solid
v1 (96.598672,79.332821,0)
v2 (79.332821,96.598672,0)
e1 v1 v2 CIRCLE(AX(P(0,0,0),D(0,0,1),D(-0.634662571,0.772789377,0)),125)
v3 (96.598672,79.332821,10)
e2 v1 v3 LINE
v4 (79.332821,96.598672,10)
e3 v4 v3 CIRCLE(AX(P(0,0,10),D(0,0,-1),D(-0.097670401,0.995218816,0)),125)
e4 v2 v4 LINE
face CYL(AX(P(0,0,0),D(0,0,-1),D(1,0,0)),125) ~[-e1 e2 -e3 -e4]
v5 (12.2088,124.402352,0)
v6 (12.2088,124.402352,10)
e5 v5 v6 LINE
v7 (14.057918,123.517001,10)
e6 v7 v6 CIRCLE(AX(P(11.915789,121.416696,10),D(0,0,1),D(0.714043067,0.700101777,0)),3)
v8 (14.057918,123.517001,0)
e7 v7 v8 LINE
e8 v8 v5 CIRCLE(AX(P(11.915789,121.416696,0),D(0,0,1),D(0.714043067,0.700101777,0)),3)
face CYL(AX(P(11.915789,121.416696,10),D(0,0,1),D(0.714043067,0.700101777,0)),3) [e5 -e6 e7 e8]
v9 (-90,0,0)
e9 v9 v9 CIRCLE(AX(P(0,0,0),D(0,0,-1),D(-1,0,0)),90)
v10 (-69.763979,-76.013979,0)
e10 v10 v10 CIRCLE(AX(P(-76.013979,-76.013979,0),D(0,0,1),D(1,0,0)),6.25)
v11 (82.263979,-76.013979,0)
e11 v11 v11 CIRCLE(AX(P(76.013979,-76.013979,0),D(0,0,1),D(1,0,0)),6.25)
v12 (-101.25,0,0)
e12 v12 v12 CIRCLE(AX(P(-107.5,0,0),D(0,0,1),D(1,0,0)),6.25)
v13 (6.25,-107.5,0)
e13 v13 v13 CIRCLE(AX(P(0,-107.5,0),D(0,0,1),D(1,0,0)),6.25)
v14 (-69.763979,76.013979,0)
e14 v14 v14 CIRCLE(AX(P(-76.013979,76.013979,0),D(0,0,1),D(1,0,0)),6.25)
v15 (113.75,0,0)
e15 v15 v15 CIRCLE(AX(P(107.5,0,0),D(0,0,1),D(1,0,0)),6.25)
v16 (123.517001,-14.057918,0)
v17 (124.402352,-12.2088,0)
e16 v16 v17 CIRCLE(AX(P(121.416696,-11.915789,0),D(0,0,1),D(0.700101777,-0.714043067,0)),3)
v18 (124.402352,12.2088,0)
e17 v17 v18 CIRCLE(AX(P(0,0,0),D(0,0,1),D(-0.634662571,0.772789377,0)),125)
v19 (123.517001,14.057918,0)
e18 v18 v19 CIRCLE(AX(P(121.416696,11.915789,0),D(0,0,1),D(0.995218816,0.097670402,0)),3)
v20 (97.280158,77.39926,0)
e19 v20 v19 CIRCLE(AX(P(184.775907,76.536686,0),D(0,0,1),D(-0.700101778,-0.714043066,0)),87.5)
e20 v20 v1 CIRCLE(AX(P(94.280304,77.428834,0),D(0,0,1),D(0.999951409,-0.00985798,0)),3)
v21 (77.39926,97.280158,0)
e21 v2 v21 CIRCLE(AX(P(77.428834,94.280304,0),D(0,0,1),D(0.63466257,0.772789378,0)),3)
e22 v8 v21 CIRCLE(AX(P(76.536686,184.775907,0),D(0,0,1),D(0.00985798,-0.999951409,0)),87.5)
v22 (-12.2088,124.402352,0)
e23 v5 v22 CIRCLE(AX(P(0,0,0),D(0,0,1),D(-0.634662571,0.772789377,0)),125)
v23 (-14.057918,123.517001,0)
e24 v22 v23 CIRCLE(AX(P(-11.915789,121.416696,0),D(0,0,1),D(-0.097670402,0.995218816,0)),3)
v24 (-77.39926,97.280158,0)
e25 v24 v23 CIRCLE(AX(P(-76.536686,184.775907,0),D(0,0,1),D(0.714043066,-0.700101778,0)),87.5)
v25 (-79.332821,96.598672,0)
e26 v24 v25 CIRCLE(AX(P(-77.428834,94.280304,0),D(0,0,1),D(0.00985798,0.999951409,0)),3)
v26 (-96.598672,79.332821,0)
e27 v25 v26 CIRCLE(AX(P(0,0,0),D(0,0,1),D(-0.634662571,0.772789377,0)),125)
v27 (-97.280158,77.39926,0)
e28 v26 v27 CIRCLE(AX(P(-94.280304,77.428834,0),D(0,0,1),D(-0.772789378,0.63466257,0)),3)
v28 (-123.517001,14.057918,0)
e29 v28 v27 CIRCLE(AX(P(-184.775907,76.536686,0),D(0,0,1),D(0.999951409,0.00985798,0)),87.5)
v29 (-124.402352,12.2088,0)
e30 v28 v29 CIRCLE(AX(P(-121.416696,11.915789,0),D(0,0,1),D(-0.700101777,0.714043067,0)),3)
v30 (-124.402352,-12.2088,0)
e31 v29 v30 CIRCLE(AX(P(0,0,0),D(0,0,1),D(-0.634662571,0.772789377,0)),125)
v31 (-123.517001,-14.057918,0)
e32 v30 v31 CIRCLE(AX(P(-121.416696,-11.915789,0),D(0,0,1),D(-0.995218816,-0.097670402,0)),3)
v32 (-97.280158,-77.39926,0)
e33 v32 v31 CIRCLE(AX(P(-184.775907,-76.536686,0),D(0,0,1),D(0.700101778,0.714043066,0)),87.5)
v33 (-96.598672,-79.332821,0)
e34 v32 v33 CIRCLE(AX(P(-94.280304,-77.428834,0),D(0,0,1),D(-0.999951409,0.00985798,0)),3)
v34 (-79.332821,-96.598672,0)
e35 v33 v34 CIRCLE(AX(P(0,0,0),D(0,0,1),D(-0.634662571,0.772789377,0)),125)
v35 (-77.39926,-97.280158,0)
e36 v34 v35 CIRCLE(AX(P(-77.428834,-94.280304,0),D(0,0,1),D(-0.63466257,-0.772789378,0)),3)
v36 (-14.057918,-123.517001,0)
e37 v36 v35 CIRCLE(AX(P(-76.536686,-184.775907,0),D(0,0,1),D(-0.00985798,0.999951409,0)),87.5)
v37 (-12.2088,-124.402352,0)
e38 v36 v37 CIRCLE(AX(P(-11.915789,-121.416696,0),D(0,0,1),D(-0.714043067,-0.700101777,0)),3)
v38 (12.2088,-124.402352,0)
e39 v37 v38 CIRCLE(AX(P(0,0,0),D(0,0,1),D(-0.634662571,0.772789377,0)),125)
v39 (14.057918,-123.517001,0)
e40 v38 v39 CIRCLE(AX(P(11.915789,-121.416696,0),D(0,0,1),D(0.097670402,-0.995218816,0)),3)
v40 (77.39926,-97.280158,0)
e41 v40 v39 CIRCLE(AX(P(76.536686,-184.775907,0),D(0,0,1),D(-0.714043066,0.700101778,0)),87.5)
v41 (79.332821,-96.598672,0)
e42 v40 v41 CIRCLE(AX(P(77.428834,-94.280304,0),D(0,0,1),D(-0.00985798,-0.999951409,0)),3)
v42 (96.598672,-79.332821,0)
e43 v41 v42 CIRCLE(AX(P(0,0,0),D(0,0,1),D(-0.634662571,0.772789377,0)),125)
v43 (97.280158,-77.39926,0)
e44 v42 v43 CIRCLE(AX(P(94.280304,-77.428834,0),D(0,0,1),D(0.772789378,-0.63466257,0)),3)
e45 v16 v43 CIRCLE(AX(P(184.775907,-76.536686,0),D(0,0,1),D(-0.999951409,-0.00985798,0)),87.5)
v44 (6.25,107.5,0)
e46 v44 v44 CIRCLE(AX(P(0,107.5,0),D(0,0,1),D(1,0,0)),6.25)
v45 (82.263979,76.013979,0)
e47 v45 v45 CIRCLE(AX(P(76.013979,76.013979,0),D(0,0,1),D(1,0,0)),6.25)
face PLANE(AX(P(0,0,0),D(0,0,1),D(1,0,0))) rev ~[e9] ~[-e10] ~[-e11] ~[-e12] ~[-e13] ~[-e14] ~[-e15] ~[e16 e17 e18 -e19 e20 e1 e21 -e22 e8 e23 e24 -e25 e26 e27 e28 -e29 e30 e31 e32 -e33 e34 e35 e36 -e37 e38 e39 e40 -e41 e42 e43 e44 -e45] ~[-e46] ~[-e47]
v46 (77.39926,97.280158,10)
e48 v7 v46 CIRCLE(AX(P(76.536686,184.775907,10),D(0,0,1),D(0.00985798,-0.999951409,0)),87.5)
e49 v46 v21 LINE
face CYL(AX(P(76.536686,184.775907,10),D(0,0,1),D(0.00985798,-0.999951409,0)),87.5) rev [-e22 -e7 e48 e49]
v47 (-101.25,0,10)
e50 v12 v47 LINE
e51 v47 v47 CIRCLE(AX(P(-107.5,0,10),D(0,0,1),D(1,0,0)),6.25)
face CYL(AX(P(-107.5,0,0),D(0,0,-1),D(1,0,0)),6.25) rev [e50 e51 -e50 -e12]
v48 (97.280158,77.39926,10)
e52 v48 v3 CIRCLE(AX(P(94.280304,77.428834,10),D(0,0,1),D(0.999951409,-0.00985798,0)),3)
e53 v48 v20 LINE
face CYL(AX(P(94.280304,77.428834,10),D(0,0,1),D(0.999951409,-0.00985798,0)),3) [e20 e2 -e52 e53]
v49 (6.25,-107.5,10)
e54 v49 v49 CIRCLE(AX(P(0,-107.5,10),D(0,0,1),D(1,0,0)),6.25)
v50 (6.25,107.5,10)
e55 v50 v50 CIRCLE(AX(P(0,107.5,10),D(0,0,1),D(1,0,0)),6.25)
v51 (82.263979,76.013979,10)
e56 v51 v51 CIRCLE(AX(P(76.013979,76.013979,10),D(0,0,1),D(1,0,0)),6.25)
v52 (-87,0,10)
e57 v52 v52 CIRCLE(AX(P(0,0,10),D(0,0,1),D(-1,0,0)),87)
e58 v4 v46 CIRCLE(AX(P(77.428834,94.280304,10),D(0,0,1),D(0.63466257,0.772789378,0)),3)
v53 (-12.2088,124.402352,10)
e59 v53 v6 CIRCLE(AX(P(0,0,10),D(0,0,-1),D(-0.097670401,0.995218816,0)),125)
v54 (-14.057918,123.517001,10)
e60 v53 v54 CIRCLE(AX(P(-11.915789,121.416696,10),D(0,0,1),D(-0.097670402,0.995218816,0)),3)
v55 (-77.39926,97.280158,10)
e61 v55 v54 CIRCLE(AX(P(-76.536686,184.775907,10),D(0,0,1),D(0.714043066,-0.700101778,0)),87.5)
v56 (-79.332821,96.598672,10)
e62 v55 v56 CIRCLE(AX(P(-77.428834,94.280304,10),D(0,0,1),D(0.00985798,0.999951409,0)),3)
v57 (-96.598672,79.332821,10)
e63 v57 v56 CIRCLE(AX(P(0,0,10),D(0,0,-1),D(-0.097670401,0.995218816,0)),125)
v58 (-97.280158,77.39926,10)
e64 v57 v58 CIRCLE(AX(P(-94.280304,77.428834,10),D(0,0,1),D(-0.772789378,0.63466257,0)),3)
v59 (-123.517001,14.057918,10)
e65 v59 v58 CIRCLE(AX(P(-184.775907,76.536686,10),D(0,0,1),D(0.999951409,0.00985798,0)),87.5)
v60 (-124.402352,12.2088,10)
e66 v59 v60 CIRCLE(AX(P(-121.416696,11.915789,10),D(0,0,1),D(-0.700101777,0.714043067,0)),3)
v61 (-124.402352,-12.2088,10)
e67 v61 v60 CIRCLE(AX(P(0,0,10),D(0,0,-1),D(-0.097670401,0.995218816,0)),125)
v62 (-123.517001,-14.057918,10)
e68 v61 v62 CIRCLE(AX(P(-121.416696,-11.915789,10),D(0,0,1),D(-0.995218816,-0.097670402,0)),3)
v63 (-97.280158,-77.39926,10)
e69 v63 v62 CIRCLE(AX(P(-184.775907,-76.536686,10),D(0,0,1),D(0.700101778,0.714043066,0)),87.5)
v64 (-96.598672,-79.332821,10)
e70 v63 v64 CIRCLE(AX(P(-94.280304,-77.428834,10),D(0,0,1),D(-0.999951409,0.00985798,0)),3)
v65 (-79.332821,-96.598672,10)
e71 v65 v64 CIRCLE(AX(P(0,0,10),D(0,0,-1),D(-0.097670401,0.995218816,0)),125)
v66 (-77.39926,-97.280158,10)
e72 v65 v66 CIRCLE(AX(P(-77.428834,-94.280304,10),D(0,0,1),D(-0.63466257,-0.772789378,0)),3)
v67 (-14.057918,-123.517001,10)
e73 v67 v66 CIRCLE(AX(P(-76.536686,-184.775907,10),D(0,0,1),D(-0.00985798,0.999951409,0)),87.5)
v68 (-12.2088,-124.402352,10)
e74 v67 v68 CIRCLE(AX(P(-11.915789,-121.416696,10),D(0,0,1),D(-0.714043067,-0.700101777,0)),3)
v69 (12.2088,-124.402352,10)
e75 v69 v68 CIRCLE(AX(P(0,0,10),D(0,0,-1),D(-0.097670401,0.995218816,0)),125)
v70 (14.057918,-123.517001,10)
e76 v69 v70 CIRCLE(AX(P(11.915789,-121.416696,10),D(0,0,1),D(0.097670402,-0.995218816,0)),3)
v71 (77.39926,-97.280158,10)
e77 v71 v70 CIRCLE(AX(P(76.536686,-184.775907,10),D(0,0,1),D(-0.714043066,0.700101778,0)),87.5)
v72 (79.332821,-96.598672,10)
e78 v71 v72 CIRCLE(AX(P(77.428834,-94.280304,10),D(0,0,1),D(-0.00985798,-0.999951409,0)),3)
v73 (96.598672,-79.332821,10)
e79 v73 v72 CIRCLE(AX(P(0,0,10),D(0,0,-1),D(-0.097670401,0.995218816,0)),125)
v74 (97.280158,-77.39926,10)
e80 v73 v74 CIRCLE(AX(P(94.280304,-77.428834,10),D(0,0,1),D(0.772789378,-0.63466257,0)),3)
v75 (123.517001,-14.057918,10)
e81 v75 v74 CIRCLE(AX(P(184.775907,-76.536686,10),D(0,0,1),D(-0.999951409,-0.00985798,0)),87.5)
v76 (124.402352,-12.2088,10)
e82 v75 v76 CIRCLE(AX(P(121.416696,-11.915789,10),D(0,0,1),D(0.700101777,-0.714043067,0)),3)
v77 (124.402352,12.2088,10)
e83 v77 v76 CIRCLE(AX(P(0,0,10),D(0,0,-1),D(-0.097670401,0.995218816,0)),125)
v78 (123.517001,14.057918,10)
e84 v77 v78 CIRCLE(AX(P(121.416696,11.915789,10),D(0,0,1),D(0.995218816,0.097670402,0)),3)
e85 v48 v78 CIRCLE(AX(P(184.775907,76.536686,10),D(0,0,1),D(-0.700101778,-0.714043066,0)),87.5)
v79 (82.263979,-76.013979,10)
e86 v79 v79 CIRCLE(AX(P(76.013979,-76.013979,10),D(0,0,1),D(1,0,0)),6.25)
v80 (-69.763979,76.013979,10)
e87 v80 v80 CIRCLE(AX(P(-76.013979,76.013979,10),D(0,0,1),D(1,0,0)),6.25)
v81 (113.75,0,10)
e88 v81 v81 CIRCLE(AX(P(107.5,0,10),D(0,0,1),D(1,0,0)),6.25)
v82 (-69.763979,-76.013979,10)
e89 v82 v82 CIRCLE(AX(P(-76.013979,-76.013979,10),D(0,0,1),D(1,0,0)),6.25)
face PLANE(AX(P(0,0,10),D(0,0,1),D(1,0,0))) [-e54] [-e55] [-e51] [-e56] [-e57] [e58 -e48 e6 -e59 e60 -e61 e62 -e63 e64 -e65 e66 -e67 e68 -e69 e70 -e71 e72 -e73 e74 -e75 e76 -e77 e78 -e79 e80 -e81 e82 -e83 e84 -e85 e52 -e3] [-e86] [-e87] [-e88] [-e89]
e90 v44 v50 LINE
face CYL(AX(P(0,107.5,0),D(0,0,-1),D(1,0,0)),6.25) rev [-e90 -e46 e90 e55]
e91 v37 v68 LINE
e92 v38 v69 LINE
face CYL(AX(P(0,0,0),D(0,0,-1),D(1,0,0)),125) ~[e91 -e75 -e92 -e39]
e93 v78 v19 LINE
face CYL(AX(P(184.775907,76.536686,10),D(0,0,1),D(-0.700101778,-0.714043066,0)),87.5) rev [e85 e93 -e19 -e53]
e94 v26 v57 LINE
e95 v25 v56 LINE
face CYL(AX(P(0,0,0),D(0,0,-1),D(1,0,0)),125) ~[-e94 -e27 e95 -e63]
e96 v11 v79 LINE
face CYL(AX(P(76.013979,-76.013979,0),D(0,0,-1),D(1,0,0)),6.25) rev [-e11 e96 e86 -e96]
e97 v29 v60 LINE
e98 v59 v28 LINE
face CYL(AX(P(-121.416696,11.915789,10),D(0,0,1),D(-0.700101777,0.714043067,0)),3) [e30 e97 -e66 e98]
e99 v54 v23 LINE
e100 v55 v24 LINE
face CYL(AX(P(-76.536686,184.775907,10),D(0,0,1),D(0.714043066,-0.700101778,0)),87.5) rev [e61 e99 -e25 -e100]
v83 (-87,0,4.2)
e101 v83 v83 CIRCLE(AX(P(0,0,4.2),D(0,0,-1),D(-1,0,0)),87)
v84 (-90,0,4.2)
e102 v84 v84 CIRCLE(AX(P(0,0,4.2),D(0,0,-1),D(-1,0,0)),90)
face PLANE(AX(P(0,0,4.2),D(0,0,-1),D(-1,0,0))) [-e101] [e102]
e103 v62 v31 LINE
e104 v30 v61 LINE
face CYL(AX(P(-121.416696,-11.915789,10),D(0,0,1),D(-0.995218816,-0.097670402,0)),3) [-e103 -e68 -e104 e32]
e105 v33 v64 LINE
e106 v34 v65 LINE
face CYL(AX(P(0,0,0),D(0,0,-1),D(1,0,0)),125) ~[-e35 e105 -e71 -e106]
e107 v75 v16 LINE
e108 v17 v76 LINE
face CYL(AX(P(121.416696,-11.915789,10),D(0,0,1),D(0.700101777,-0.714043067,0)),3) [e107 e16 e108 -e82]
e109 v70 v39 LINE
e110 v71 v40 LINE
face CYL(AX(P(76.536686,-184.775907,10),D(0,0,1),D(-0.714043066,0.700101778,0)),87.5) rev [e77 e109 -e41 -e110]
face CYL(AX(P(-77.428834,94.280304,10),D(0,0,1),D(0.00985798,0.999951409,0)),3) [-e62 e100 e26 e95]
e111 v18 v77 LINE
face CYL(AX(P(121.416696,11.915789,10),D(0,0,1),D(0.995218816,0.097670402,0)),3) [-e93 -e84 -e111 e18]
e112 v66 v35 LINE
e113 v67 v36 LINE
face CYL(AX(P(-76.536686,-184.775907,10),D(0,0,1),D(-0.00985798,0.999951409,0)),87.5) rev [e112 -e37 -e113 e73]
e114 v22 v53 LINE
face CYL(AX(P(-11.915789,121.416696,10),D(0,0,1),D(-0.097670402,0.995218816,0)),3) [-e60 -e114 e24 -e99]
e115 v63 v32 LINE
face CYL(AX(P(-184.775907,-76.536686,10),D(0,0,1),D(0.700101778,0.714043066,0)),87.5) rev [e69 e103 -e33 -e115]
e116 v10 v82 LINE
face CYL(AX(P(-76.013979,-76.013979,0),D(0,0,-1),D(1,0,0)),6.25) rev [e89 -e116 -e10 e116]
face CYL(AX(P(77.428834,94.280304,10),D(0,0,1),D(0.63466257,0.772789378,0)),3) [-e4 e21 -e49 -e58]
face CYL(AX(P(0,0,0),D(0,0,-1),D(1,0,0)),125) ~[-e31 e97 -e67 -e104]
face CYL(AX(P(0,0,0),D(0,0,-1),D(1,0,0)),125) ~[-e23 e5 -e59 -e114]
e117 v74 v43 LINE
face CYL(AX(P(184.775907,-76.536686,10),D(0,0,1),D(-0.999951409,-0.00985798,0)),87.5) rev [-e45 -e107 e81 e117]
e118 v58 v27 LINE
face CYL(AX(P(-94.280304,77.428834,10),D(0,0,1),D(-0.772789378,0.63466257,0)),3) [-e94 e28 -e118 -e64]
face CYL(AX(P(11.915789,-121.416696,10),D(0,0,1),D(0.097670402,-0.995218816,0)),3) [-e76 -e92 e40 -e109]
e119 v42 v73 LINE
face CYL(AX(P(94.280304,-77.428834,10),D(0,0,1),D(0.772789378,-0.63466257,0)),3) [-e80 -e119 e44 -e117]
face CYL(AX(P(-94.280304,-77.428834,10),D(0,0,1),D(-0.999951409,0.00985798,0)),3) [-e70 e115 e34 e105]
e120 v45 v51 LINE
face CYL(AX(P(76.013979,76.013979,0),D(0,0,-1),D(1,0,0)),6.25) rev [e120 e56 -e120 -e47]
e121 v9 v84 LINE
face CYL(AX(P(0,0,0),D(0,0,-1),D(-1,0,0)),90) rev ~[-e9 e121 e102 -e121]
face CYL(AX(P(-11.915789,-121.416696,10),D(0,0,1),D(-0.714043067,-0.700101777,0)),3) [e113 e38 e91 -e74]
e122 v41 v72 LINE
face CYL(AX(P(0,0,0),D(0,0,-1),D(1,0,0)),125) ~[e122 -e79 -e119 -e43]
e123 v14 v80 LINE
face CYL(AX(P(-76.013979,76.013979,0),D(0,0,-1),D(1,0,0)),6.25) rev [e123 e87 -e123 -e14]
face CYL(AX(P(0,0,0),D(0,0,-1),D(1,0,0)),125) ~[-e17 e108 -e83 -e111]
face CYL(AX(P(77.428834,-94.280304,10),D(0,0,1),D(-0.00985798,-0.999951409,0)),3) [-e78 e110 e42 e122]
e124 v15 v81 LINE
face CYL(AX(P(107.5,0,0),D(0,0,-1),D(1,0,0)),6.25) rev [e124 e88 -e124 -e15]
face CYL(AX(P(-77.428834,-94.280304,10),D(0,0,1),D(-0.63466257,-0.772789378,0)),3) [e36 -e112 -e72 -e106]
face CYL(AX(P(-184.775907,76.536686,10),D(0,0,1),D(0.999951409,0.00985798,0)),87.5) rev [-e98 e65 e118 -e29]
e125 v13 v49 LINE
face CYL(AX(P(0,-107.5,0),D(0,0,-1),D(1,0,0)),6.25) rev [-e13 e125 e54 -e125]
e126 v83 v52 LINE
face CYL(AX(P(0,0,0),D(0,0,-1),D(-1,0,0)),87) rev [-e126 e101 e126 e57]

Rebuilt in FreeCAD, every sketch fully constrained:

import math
import FreeCAD as App
import Part
import Sketcher
from FreeCAD import Vector

doc = App.newDocument("Part")
body = doc.addObject("PartDesign::Body", "Body")

sketch1 = doc.addObject("Sketcher::SketchObject", "Sketch")
body.addObject(sketch1)
sketch1.AttachmentSupport = (doc.XY_Plane, [""])
sketch1.MapMode = "FlatFace"
sketch1.addGeometry([
    Part.Circle(Vector(0, 0, 0), Vector(0, 0, 1), 125),
    Part.Circle(Vector(-76, -76, 0), Vector(0, 0, 1), 6),
    Part.Circle(Vector(0, -108, 0), Vector(0, 0, 1), 6),
    Part.Circle(Vector(76, -76, 0), Vector(0, 0, 1), 6),
    Part.Circle(Vector(-108, 0, 0), Vector(0, 0, 1), 6),
    Part.Circle(Vector(-76, 76, 0), Vector(0, 0, 1), 6),
    Part.Circle(Vector(0, 0, 0), Vector(0, 0, 1), 87),
    Part.Circle(Vector(108, 0, 0), Vector(0, 0, 1), 6),
    Part.Circle(Vector(0, 108, 0), Vector(0, 0, 1), 6),
    Part.Circle(Vector(76, 76, 0), Vector(0, 0, 1), 6),
], False)
sketch1.addConstraint([
    Sketcher.Constraint("Coincident", 0, 3, -1, 1),
    Sketcher.Constraint("Coincident", 6, 3, -1, 1),
    Sketcher.Constraint("Equal", 1, 2),
    Sketcher.Constraint("Equal", 2, 3),
    Sketcher.Constraint("Equal", 3, 4),
    Sketcher.Constraint("Equal", 4, 5),
    Sketcher.Constraint("Equal", 5, 7),
    Sketcher.Constraint("Equal", 7, 8),
    Sketcher.Constraint("Equal", 8, 9),
    Sketcher.Constraint("Symmetric", 3, 3, 5, 3, -1, 1),
    Sketcher.Constraint("Symmetric", 4, 3, 7, 3, -1, 1),
    Sketcher.Constraint("Symmetric", 2, 3, 8, 3, -1, 1),
    Sketcher.Constraint("Symmetric", 1, 3, 9, 3, -1, 1),
    Sketcher.Constraint("Symmetric", 1, 3, 3, 3, -2),
    Sketcher.Constraint("PointOnObject", 2, 3, -2),
    Sketcher.Constraint("PointOnObject", 4, 3, -1),
    Sketcher.Constraint("Diameter", 0, 250.0),
    Sketcher.Constraint("Diameter", 6, 174.0),
    Sketcher.Constraint("Diameter", 1, 12.5),
    Sketcher.Constraint("DistanceY", 2, 3, -1, 1, 107.5),
    Sketcher.Constraint("DistanceX", 4, 3, -1, 1, 107.5),
    Sketcher.Constraint("DistanceX", 1, 3, -1, 1, 76.013979),
    Sketcher.Constraint("DistanceY", 1, 3, -1, 1, 76.013979),
])
pad1 = doc.addObject("PartDesign::Pad", "Pad")
body.addObject(pad1)
pad1.Profile = sketch1
pad1.Length = 10

sketch2 = doc.addObject("Sketcher::SketchObject", "Sketch001")
body.addObject(sketch2)
sketch2.AttachmentSupport = (doc.XY_Plane, [""])
sketch2.MapMode = "FlatFace"
sketch2.AttachmentOffset = App.Placement(Vector(0, 0, 10), App.Rotation())
sketch2.addGeometry([
    Part.ArcOfCircle(Part.Circle(Vector(-11.9, 121.4, 0), Vector(0, 0, 1), 3), math.radians(96), math.radians(136)),
    Part.ArcOfCircle(Part.Circle(Vector(0, 0, 0), Vector(0, 0, 1), 125), math.radians(96), math.radians(129)),
    Part.ArcOfCircle(Part.Circle(Vector(-77.4, 94.3, 0), Vector(0, 0, 1), 3), math.radians(89), math.radians(129)),
    Part.ArcOfCircle(Part.Circle(Vector(-76.5, 184.8, 0), Vector(0, 0, 1), 87.5), math.radians(-91), math.radians(-44)),
], False)
sketch2.addConstraint([
    Sketcher.Constraint("Tangent", 0, 1, 1, 1),
    Sketcher.Constraint("Tangent", 1, 2, 2, 2),
    Sketcher.Constraint("Tangent", 2, 1, 3, 1),
    Sketcher.Constraint("Tangent", 3, 2, 0, 2),
    Sketcher.Constraint("Coincident", 1, 3, -1, 1),
    Sketcher.Constraint("Equal", 0, 2),
    Sketcher.Constraint("Radius", 0, 3.0),
    Sketcher.Constraint("Radius", 1, 125.0),
    Sketcher.Constraint("Radius", 3, 87.5),
    Sketcher.Constraint("DistanceX", 0, 1, -1, 1, 12.2088),
    Sketcher.Constraint("DistanceX", 1, 2, -1, 1, 79.332821),
])
pocket1 = doc.addObject("PartDesign::Pocket", "Pocket")
body.addObject(pocket1)
pocket1.Profile = sketch2
pocket1.Length = 356.118624
pocket1.Midplane = True
doc.recompute()

polarpattern = doc.addObject("PartDesign::PolarPattern", "PolarPattern")
body.addObject(polarpattern)
polarpattern.Originals = [pocket1]
polarpattern.Axis = (doc.Z_Axis, [""])
polarpattern.Angle = 360
polarpattern.Occurrences = 8
body.Tip = polarpattern

sketch3 = doc.addObject("Sketcher::SketchObject", "Sketch002")
body.addObject(sketch3)
sketch3.AttachmentSupport = (doc.XY_Plane, [""])
sketch3.MapMode = "FlatFace"
sketch3.addGeometry(Part.Circle(Vector(0, 0, 0), Vector(0, 0, 1), 90), False)
sketch3.addConstraint([
    Sketcher.Constraint("Coincident", 0, 3, -1, 1),
    Sketcher.Constraint("Diameter", 0, 180.0),
])
pocket2 = doc.addObject("PartDesign::Pocket", "Pocket001")
body.addObject(pocket2)
pocket2.Profile = sketch3
pocket2.Length = 4.2
pocket2.Reversed = True

doc.recompute()
